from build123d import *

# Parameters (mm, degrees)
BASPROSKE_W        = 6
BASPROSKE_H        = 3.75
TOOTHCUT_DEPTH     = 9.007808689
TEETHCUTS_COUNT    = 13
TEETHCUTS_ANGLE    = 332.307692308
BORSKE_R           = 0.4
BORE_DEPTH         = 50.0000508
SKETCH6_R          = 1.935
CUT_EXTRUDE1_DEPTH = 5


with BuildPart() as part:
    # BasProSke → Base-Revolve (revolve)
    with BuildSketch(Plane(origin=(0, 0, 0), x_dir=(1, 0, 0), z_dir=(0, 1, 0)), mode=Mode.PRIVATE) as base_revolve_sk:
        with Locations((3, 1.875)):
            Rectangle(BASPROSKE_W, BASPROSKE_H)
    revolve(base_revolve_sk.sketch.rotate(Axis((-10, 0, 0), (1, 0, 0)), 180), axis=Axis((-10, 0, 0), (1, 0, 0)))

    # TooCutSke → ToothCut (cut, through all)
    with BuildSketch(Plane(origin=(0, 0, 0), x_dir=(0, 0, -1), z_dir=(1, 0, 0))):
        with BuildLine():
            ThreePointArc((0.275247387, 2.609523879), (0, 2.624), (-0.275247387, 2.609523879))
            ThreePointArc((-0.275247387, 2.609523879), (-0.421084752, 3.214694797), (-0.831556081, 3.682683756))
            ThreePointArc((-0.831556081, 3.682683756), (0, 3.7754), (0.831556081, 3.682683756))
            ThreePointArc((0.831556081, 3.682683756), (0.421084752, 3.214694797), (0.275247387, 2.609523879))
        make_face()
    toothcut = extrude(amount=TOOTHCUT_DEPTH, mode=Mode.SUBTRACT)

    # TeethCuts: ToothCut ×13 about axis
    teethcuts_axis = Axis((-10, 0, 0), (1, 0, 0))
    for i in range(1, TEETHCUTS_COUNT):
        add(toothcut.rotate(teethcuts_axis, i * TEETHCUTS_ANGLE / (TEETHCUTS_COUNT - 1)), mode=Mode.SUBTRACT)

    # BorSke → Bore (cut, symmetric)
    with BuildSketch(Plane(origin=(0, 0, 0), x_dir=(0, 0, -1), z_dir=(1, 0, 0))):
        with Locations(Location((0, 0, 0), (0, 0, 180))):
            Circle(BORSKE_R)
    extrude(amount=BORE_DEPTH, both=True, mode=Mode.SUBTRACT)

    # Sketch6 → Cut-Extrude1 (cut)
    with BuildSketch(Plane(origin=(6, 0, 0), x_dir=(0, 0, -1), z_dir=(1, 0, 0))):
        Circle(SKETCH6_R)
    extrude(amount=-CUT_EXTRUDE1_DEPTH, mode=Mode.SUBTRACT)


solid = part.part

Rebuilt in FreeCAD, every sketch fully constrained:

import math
import FreeCAD as App
import Part
import Sketcher
from FreeCAD import Vector
Q = App.Units.Quantity

doc = App.newDocument("Part")
params = doc.addObject("Spreadsheet::Sheet", "Params")
for row, (alias, value) in enumerate([
    ("sketch1_width", "6 mm"),
    ("sketch1_height", "3.75 mm"),
    ("revolution_angle", "360 deg"),
    ("sketch2_radius", "1.3 mm"),
    ("sketch3_diameter", "0.8 mm"),
    ("pocket2_length", "100.000102 mm"),
    ("sketch4_diameter", "3.87 mm"),
    ("pocket3_length", "5 mm"),
], start=1):
    params.set(f"A{row}", alias)
    params.set(f"B{row}", "=" + value)
    params.setAlias(f"B{row}", alias)

body = doc.addObject("PartDesign::Body", "Body")

# Sketch on XZ plane
sketch1 = doc.addObject("Sketcher::SketchObject", "Sketch")
body.addObject(sketch1)
sketch1.AttachmentSupport = (doc.XZ_Plane, [""])
sketch1.MapMode = "FlatFace"
sketch1.addGeometry(Part.LineSegment(Vector(0, -3.75, 0), Vector(0, 0, 0)), False)
sketch1.addGeometry(Part.LineSegment(Vector(0, 0, 0), Vector(6, 0, 0)), False)
sketch1.addGeometry(Part.LineSegment(Vector(6, 0, 0), Vector(6, -3.75, 0)), False)
sketch1.addGeometry(Part.LineSegment(Vector(6, -3.75, 0), Vector(0, -3.75, 0)), False)
sketch1.addConstraint(Sketcher.Constraint("Coincident", 0, 2, 1, 1))
sketch1.addConstraint(Sketcher.Constraint("Coincident", 1, 2, 2, 1))
sketch1.addConstraint(Sketcher.Constraint("Coincident", 2, 2, 3, 1))
sketch1.addConstraint(Sketcher.Constraint("Coincident", 3, 2, 0, 1))
sketch1.addConstraint(Sketcher.Constraint("Vertical", 0))
sketch1.addConstraint(Sketcher.Constraint("Horizontal", 1))
sketch1.addConstraint(Sketcher.Constraint("Vertical", 2))
sketch1.addConstraint(Sketcher.Constraint("Horizontal", 3))
sketch1.addConstraint(Sketcher.Constraint("Coincident", 0, 2, -1, 1))
sketch1.addConstraint(Sketcher.Constraint("DistanceX", 1, 1, 1, 2, Q("6 mm")))
sketch1.addConstraint(Sketcher.Constraint("DistanceY", 0, 1, 0, 2, Q("3.75 mm")))
sketch1.setExpression("Constraints[9]", "Params.sketch1_width")
sketch1.setExpression("Constraints[10]", "Params.sketch1_height")
revolution = doc.addObject("PartDesign::Revolution", "Revolution")
body.addObject(revolution)
revolution.Profile = sketch1
revolution.ReferenceAxis = (sketch1, ["H_Axis"])
revolution.setExpression("Angle", "Params.revolution_angle")

# Sketch on YZ plane
sketch2 = doc.addObject("Sketcher::SketchObject", "Sketch001")
body.addObject(sketch2)
sketch2.AttachmentSupport = (doc.YZ_Plane, [""])
sketch2.MapMode = "FlatFace"
sketch2.addGeometry(Part.ArcOfCircle(Part.Circle(Vector(0, 0, 0), Vector(0, 0, 1), 2.624), math.radians(-6.021181), math.radians(6.021181)), False)
sketch2.addGeometry(Part.ArcOfCircle(Part.Circle(Vector(2.616405, -1.575229, 0), Vector(0, 0, 1), 1.3), math.radians(34.893738), math.radians(90.303279)), False)
sketch2.addGeometry(Part.ArcOfCircle(Part.Circle(Vector(0, 0, 0), Vector(0, 0, 1), 3.7754), math.radians(-12.724094), math.radians(12.724094)), False)
sketch2.addGeometry(Part.ArcOfCircle(Part.Circle(Vector(2.616405, 1.575229, 0), Vector(0, 0, 1), 1.3), math.radians(-90.303279), math.radians(-34.893738)), False)
sketch2.addConstraint(Sketcher.Constraint("Coincident", 0, 1, 1, 2))
sketch2.addConstraint(Sketcher.Constraint("Coincident", 1, 1, 2, 1))
sketch2.addConstraint(Sketcher.Constraint("Coincident", 2, 2, 3, 2))
sketch2.addConstraint(Sketcher.Constraint("Coincident", 3, 1, 0, 2))
sketch2.addConstraint(Sketcher.Constraint("Coincident", 0, 3, -1, 1))
sketch2.addConstraint(Sketcher.Constraint("Coincident", 2, 3, -1, 1))
sketch2.addConstraint(Sketcher.Constraint("Equal", 1, 3))
sketch2.addConstraint(Sketcher.Constraint("Symmetric", 1, 3, 3, 3, -1))
sketch2.addConstraint(Sketcher.Constraint("Radius", 1, Q("1.3 mm")))
sketch2.addConstraint(Sketcher.Constraint("Radius", 0, Q("2.624 mm")))
sketch2.addConstraint(Sketcher.Constraint("Radius", 2, Q("3.7754 mm")))
sketch2.addConstraint(Sketcher.Constraint("DistanceY", 1, 3, -1, 1, Q("1.575229 mm")))
sketch2.addConstraint(Sketcher.Constraint("DistanceX", 0, 1, 1, 3, Q("0.006881 mm")))
sketch2.setExpression("Constraints[8]", "Params.sketch2_radius")
pocket1 = doc.addObject("PartDesign::Pocket", "Pocket")
body.addObject(pocket1)
pocket1.Profile = sketch2
pocket1.Type = "ThroughAll"
pocket1.Reversed = True
doc.recompute()

polarpattern = doc.addObject("PartDesign::PolarPattern", "PolarPattern")
body.addObject(polarpattern)
polarpattern.Originals = [pocket1]
polarpattern.Axis = (doc.X_Axis, [""])
polarpattern.Angle = 360
polarpattern.Occurrences = 13
body.Tip = polarpattern

# Sketch on YZ plane
sketch3 = doc.addObject("Sketcher::SketchObject", "Sketch002")
body.addObject(sketch3)
sketch3.AttachmentSupport = (doc.YZ_Plane, [""])
sketch3.MapMode = "FlatFace"
sketch3.addGeometry(Part.Circle(Vector(0, 0, 0), Vector(0, 0, 1), 0.4), False)
sketch3.addConstraint(Sketcher.Constraint("Coincident", 0, 3, -1, 1))
sketch3.addConstraint(Sketcher.Constraint("Diameter", 0, Q("0.8 mm")))
sketch3.setExpression("Constraints[1]", "Params.sketch3_diameter")
pocket2 = doc.addObject("PartDesign::Pocket", "Pocket001")
body.addObject(pocket2)
pocket2.Profile = sketch3
pocket2.setExpression("Length", "Params.pocket2_length")
pocket2.Midplane = True

# Sketch on YZ plane
sketch4 = doc.addObject("Sketcher::SketchObject", "Sketch003")
body.addObject(sketch4)
sketch4.AttachmentSupport = (doc.YZ_Plane, [""])
sketch4.MapMode = "FlatFace"
sketch4.AttachmentOffset = App.Placement(Vector(0, 0, 6), App.Rotation())
sketch4.addGeometry(Part.Circle(Vector(0, 0, 0), Vector(0, 0, 1), 1.935), False)
sketch4.addConstraint(Sketcher.Constraint("Coincident", 0, 3, -1, 1))
sketch4.addConstraint(Sketcher.Constraint("Diameter", 0, Q("3.87 mm")))
sketch4.setExpression("Constraints[1]", "Params.sketch4_diameter")
pocket3 = doc.addObject("PartDesign::Pocket", "Pocket002")
body.addObject(pocket3)
pocket3.Profile = sketch4
pocket3.setExpression("Length", "Params.pocket3_length")

doc.recompute()
